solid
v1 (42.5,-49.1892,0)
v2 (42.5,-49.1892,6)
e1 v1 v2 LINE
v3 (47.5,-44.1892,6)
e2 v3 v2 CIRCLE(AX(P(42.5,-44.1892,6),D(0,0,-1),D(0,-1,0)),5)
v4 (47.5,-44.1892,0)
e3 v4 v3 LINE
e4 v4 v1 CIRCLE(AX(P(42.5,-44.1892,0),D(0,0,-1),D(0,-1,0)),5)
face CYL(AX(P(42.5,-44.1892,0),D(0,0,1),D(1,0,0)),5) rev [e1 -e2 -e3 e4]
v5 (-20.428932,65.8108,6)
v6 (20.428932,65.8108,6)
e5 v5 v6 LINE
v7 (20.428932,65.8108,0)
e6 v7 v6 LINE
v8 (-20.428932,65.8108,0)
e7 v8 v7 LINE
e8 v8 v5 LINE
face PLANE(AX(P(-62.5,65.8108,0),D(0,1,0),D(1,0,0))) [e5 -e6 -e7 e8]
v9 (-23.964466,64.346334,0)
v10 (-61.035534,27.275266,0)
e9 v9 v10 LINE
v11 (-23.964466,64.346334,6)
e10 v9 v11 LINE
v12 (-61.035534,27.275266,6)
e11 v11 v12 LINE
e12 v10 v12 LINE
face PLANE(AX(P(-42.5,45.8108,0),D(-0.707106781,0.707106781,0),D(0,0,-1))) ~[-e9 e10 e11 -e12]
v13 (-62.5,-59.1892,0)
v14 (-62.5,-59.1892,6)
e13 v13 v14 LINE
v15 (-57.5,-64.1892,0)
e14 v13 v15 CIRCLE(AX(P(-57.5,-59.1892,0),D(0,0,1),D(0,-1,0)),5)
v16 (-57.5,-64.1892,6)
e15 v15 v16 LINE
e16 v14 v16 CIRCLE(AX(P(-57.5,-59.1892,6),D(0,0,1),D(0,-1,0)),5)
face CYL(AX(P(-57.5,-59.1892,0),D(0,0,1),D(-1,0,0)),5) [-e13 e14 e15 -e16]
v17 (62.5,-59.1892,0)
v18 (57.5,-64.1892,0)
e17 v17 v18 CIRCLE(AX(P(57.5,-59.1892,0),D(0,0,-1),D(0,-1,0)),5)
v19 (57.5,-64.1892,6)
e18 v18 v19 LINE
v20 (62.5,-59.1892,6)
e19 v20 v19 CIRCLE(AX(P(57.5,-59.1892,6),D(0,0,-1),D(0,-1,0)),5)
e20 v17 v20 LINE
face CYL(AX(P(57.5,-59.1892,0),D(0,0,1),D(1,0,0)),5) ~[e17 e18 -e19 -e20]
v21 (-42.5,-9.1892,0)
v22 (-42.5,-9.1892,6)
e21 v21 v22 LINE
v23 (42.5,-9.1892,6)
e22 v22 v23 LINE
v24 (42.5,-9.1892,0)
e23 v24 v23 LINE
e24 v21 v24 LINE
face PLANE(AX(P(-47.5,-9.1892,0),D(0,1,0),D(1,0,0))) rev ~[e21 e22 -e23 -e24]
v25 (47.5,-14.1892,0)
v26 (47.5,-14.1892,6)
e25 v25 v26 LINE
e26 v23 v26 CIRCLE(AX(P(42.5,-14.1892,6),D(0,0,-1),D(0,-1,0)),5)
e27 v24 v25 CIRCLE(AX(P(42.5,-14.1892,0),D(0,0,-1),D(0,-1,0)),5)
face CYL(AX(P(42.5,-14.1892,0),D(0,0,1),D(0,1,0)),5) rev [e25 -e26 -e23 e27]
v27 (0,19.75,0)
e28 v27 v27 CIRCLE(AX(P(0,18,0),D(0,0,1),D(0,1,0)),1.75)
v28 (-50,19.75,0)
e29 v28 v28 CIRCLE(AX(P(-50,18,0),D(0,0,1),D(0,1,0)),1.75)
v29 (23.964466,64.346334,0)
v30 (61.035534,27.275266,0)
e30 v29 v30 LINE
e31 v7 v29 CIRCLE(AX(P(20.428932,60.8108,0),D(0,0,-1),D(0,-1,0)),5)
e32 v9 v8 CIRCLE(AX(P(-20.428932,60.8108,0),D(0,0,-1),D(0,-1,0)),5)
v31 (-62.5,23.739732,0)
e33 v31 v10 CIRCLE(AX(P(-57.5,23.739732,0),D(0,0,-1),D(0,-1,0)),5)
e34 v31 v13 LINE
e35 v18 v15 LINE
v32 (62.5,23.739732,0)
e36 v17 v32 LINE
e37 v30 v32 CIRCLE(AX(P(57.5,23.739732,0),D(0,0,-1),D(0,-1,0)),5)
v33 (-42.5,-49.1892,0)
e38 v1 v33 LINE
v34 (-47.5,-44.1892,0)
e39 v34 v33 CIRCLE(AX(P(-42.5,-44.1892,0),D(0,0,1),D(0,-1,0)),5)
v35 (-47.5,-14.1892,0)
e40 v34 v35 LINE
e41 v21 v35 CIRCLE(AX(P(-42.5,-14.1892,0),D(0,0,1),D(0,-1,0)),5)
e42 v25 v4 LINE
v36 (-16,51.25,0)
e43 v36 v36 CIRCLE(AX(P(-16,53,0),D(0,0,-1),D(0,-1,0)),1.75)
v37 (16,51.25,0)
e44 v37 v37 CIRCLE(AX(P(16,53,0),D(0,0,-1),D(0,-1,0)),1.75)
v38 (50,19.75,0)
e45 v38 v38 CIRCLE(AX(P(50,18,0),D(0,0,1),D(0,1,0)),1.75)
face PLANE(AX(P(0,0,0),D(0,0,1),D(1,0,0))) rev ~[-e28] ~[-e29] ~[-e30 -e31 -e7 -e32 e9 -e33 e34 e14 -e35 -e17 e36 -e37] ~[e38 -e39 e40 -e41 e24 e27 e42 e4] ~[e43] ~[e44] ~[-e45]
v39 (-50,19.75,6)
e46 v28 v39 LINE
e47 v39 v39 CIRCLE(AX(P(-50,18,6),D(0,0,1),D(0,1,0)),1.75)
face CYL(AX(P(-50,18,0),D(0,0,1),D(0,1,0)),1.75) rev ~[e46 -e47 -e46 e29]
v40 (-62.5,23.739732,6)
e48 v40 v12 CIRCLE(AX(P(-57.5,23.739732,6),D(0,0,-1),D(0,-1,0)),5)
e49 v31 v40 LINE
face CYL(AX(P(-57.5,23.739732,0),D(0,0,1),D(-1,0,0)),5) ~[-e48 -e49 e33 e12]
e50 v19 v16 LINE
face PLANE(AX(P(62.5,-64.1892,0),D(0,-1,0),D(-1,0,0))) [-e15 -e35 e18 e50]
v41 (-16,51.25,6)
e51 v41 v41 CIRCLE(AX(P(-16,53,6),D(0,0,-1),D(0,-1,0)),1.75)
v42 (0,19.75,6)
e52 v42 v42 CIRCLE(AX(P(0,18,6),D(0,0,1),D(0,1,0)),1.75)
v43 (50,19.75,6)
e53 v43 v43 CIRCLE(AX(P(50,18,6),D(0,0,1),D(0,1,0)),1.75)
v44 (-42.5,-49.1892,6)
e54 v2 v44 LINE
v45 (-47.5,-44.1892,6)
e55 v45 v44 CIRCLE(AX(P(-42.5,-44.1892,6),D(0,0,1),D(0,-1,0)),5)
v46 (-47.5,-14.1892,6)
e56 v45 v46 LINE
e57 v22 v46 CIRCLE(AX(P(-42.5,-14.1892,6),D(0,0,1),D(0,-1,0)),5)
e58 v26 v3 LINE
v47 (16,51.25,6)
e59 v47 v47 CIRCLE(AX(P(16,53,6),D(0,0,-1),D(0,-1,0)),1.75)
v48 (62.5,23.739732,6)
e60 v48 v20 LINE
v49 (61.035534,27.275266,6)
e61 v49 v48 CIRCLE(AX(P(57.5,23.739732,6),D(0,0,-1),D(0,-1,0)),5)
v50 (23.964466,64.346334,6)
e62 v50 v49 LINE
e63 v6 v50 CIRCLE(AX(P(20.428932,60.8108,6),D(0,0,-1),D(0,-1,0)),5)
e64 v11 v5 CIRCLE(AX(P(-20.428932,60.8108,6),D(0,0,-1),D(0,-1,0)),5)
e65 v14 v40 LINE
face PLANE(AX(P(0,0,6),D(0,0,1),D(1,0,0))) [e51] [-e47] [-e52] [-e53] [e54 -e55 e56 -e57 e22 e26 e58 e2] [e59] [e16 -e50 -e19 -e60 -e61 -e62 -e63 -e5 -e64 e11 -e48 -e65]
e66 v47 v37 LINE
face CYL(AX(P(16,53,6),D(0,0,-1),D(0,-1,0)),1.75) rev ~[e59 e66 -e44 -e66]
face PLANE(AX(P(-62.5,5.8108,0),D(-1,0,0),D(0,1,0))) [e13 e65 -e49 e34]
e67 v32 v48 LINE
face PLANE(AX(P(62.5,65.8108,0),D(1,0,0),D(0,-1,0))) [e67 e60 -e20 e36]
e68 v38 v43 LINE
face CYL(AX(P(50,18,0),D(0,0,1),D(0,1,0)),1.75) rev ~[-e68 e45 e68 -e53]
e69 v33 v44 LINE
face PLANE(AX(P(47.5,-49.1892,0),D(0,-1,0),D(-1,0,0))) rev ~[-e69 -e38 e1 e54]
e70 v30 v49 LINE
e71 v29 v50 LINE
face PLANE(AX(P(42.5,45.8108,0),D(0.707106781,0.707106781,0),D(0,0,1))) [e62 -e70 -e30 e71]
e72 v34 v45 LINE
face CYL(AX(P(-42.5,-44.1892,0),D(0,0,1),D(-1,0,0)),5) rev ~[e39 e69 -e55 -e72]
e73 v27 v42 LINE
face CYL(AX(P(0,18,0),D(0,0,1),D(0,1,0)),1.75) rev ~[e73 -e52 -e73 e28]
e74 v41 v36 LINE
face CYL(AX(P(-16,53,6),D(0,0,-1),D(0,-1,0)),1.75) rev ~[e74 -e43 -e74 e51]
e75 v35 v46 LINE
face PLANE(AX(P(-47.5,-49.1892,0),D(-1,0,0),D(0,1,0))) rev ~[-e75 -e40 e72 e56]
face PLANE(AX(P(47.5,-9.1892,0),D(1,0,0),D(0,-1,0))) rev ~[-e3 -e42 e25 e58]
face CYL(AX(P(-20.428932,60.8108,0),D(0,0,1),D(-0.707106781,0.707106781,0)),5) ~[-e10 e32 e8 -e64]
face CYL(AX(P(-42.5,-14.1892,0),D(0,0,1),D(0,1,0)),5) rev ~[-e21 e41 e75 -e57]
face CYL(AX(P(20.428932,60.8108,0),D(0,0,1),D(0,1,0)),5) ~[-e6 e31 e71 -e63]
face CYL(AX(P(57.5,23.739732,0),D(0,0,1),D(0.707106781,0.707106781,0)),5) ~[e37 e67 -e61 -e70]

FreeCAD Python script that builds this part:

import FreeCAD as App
import Part
import Sketcher
Q = App.Units.Quantity


def edges_at(feature, points):
    """Names of the edges that pass closest to the given points."""
    edges = feature.Shape.Edges
    near = lambda p: min(range(len(edges)), key=lambda i: edges[i].distToShape(Part.Vertex(*p))[0])
    return sorted({f"Edge{near(p) + 1}" for p in points})

doc = App.newDocument("Part")
body = doc.addObject("PartDesign::Body", "Body")

# Sketch on XY plane
sketch1 = body.newObject("Sketcher::SketchObject", "Sketch")
sketch1.AttachmentSupport = (doc.getObject("XY_Plane"), [""])
sketch1.MapMode = "FlatFace"
sketch1.addGeometry(Part.LineSegment(App.Vector(62, 66, 0), App.Vector(-62, 66, 0)), False)
sketch1.addGeometry(Part.LineSegment(App.Vector(-62, 66, 0), App.Vector(-62, -64, 0)), False)
sketch1.addGeometry(Part.LineSegment(App.Vector(-62, -64, 0), App.Vector(62, -64, 0)), False)
sketch1.addGeometry(Part.LineSegment(App.Vector(62, -64, 0), App.Vector(62, 66, 0)), False)
sketch1.addGeometry(Part.LineSegment(App.Vector(-48, -9, 0), App.Vector(48, -9, 0)), False)
sketch1.addGeometry(Part.LineSegment(App.Vector(48, -9, 0), App.Vector(48, -49, 0)), False)
sketch1.addGeometry(Part.LineSegment(App.Vector(48, -49, 0), App.Vector(-48, -49, 0)), False)
sketch1.addGeometry(Part.LineSegment(App.Vector(-48, -49, 0), App.Vector(-48, -9, 0)), False)
sketch1.addConstraint(Sketcher.Constraint("Coincident", 0, 2, 1, 1))
sketch1.addConstraint(Sketcher.Constraint("Coincident", 1, 2, 2, 1))
sketch1.addConstraint(Sketcher.Constraint("Coincident", 2, 2, 3, 1))
sketch1.addConstraint(Sketcher.Constraint("Coincident", 3, 2, 0, 1))
sketch1.addConstraint(Sketcher.Constraint("Coincident", 4, 2, 5, 1))
sketch1.addConstraint(Sketcher.Constraint("Coincident", 5, 2, 6, 1))
sketch1.addConstraint(Sketcher.Constraint("Coincident", 6, 2, 7, 1))
sketch1.addConstraint(Sketcher.Constraint("Coincident", 7, 2, 4, 1))
sketch1.addConstraint(Sketcher.Constraint("Horizontal", 0))
sketch1.addConstraint(Sketcher.Constraint("Vertical", 1))
sketch1.addConstraint(Sketcher.Constraint("Horizontal", 2))
sketch1.addConstraint(Sketcher.Constraint("Vertical", 3))
sketch1.addConstraint(Sketcher.Constraint("Horizontal", 4))
sketch1.addConstraint(Sketcher.Constraint("Vertical", 5))
sketch1.addConstraint(Sketcher.Constraint("Horizontal", 6))
sketch1.addConstraint(Sketcher.Constraint("Vertical", 7))
sketch1.addConstraint(Sketcher.Constraint("DistanceX", 0, 2, 0, 1, Q("125 mm")))
sketch1.addConstraint(Sketcher.Constraint("DistanceY", 5, 2, 5, 1, Q("40 mm")))
sketch1.addConstraint(Sketcher.Constraint("DistanceX", 4, 2, 2, 2, Q("15 mm")))
sketch1.addConstraint(Sketcher.Constraint("DistanceY", 2, 2, 5, 2, Q("15 mm")))
sketch1.addConstraint(Sketcher.Constraint("DistanceX", 1, 2, 6, 2, Q("15 mm")))
sketch1.addConstraint(Sketcher.Constraint("DistanceX", 0, 2, -1, 1, Q("62.5 mm")))
sketch1.addConstraint(Sketcher.Constraint("DistanceY", 1, 2, 1, 1, Q("130 mm")))
sketch1.addConstraint(Sketcher.Constraint("DistanceY", -1, 1, 0, 2, Q("65.8108 mm")))
pad1 = body.newObject("PartDesign::Pad", "Pad")
pad1.Profile = sketch1
pad1.Length = 6

# Sketch on XY plane
sketch2 = body.newObject("Sketcher::SketchObject", "Sketch001")
sketch2.AttachmentSupport = (doc.getObject("XY_Plane"), [""])
sketch2.MapMode = "FlatFace"
sketch2.addGeometry(Part.Circle(App.Vector(-50, 18, 0), App.Vector(0, 0, 1), 1.8), False)
sketch2.addGeometry(Part.Circle(App.Vector(50, 18, 0), App.Vector(0, 0, 1), 1.8), False)
sketch2.addGeometry(Part.Circle(App.Vector(0, 18, 0), App.Vector(0, 0, 1), 1.8), False)
sketch2.addConstraint(Sketcher.Constraint("Equal", 0, 1))
sketch2.addConstraint(Sketcher.Constraint("Equal", 1, 2))
sketch2.addConstraint(Sketcher.Constraint("Symmetric", 0, 3, 1, 3, -2))
sketch2.addConstraint(Sketcher.Constraint("PointOnObject", 2, 3, -2))
sketch2.addConstraint(Sketcher.Constraint("Horizontal", 1, 3, 2, 3))
sketch2.addConstraint(Sketcher.Constraint("Diameter", 0, Q("3.5 mm")))
sketch2.addConstraint(Sketcher.Constraint("DistanceX", 0, 3, -1, 1, Q("50 mm")))
sketch2.addConstraint(Sketcher.Constraint("DistanceY", -1, 1, 0, 3, Q("18 mm")))
doc.recompute()
hole = body.newObject("PartDesign::Hole", "Hole")
hole.Profile = sketch2
hole.ThreadType = "None"
hole.Diameter = 3.5
hole.DepthType = "ThroughAll"
hole.Reversed = True
doc.recompute()

chamfer = body.newObject("PartDesign::Chamfer", "Chamfer")
chamfer.Base = (hole, edges_at(hole, [(-62.5, 65.811, 3), (62.5, 65.811, 3)]))
chamfer.Size = 40
doc.recompute()

fillet = body.newObject("PartDesign::Fillet", "Fillet")
fillet.Base = (chamfer, edges_at(chamfer, [
    (47.5, -9.189, 3),
    (47.5, -49.189, 3),
    (62.5, -64.189, 3),
    (-62.5, -64.189, 3),
    (-47.5, -49.189, 3),
    (-47.5, -9.189, 3),
]))
fillet.Radius = 5
doc.recompute()

fillet2 = body.newObject("PartDesign::Fillet", "Fillet001")
fillet2.Base = (fillet, edges_at(fillet, [
    (-62.5, 25.811, 3),
    (-22.5, 65.811, 3),
    (22.5, 65.811, 3),
    (62.5, 25.811, 3),
]))
fillet2.Radius = 5

# Sketch on XY plane
sketch3 = body.newObject("Sketcher::SketchObject", "Sketch002")
sketch3.AttachmentSupport = (doc.getObject("XY_Plane"), [""])
sketch3.MapMode = "FlatFace"
sketch3.AttachmentOffset = App.Placement(App.Vector(0, 0, 6), App.Rotation())
sketch3.addGeometry(Part.Circle(App.Vector(16, 53, 0), App.Vector(0, 0, 1), 1.8), False)
sketch3.addGeometry(Part.Circle(App.Vector(-16, 53, 0), App.Vector(0, 0, 1), 1.8), False)
sketch3.addConstraint(Sketcher.Constraint("Equal", 0, 1))
sketch3.addConstraint(Sketcher.Constraint("Symmetric", 0, 3, 1, 3, -2))
sketch3.addConstraint(Sketcher.Constraint("Diameter", 0, Q("3.5 mm")))
sketch3.addConstraint(Sketcher.Constraint("DistanceX", -1, 1, 0, 3, Q("16 mm")))
sketch3.addConstraint(Sketcher.Constraint("DistanceY", -1, 1, 0, 3, Q("53 mm")))
doc.recompute()
hole2 = body.newObject("PartDesign::Hole", "Hole001")
hole2.Profile = sketch3
hole2.ThreadType = "None"
hole2.Diameter = 3.5
hole2.DepthType = "ThroughAll"

doc.recompute()
